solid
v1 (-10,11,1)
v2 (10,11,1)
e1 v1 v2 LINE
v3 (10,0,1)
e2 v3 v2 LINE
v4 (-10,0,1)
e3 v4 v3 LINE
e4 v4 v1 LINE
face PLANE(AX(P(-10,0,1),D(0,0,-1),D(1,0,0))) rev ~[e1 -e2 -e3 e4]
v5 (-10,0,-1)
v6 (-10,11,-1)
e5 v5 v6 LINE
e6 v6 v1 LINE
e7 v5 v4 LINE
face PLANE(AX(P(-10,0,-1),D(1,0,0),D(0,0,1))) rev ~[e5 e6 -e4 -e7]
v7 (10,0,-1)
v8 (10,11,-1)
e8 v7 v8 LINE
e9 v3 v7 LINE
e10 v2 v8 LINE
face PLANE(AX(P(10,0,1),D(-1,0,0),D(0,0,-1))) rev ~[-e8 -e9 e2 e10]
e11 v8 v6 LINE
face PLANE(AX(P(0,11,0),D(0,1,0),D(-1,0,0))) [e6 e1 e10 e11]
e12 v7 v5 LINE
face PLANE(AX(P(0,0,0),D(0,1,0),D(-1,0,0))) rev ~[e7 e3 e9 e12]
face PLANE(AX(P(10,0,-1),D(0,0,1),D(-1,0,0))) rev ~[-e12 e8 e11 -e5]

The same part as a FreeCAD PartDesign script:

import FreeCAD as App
import Part
import Sketcher

V = App.Vector

doc = App.newDocument("Part")
params = doc.addObject("Spreadsheet::Sheet", "Params")
for row, (alias, value) in enumerate([
    ("sketch1_width", "20 mm"),
    ("sketch1_height", "2 mm"),
    ("pad1_length", "11 mm"),
], start=1):
    params.set(f"A{row}", alias)
    params.set(f"B{row}", "=" + value)
    params.setAlias(f"B{row}", alias)

body = doc.addObject("PartDesign::Body", "Body")

# Sketch on XZ plane
sketch1 = doc.addObject("Sketcher::SketchObject", "Sketch")
body.addObject(sketch1)
sketch1.AttachmentSupport = (doc.XZ_Plane, [""])
sketch1.MapMode = "FlatFace"
sketch1.addGeometry(Part.LineSegment(V(10, 1, 0), V(10, -1, 0)), False)
sketch1.addGeometry(Part.LineSegment(V(10, -1, 0), V(-10, -1, 0)), False)
sketch1.addGeometry(Part.LineSegment(V(-10, -1, 0), V(-10, 1, 0)), False)
sketch1.addGeometry(Part.LineSegment(V(-10, 1, 0), V(10, 1, 0)), False)
sketch1.addConstraint(Sketcher.Constraint("Coincident", 0, 2, 1, 1))
sketch1.addConstraint(Sketcher.Constraint("Coincident", 1, 2, 2, 1))
sketch1.addConstraint(Sketcher.Constraint("Coincident", 2, 2, 3, 1))
sketch1.addConstraint(Sketcher.Constraint("Coincident", 3, 2, 0, 1))
sketch1.addConstraint(Sketcher.Constraint("Vertical", 0))
sketch1.addConstraint(Sketcher.Constraint("Horizontal", 1))
sketch1.addConstraint(Sketcher.Constraint("Vertical", 2))
sketch1.addConstraint(Sketcher.Constraint("Horizontal", 3))
sketch1.addConstraint(Sketcher.Constraint("Symmetric", 0, 2, 2, 2, -1, 1))
sketch1.addConstraint(Sketcher.Constraint("DistanceX", 1, 2, 1, 1, 20.0))
sketch1.addConstraint(Sketcher.Constraint("DistanceY", 0, 2, 0, 1, 2.0))
sketch1.setExpression("Constraints[9]", "Params.sketch1_width")
sketch1.setExpression("Constraints[10]", "Params.sketch1_height")
pad1 = doc.addObject("PartDesign::Pad", "Pad")
body.addObject(pad1)
pad1.Profile = sketch1
pad1.setExpression("Length", "Params.pad1_length")
pad1.Reversed = True

doc.recompute()
